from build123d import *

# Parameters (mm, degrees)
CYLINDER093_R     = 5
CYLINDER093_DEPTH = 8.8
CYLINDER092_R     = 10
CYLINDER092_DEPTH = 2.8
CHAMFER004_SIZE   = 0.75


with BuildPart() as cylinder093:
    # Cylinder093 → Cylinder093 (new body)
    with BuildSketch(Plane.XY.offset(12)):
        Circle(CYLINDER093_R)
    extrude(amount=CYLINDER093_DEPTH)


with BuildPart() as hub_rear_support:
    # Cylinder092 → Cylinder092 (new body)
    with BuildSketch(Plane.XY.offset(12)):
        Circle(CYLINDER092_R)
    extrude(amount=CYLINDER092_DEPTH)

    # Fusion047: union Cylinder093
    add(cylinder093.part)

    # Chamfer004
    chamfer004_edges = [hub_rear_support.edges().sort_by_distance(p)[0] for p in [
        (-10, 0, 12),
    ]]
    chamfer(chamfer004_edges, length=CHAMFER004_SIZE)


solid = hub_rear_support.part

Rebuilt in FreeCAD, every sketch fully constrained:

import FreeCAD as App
import Part
import Sketcher


def edges_at(feature, points):
    """Names of the edges that pass closest to the given points."""
    edges = feature.Shape.Edges
    near = lambda p: min(range(len(edges)), key=lambda i: edges[i].distToShape(Part.Vertex(*p))[0])
    return sorted({f"Edge{near(p) + 1}" for p in points})

doc = App.newDocument("Part")
params = doc.addObject("Spreadsheet::Sheet", "Params")
for row, (alias, value) in enumerate([
    ("sketch1_diameter", "10 mm"),
    ("pad1_length", "8.8 mm"),
    ("sketch2_diameter", "20 mm"),
    ("pad2_length", "2.8 mm"),
    ("chamfer_size", "0.75 mm"),
], start=1):
    params.set(f"A{row}", alias)
    params.set(f"B{row}", "=" + value)
    params.setAlias(f"B{row}", alias)

body = doc.addObject("PartDesign::Body", "Body")

sketch1 = body.newObject("Sketcher::SketchObject", "Sketch")
sketch1.AttachmentSupport = (doc.getObject("XY_Plane"), [""])
sketch1.MapMode = "FlatFace"
sketch1.AttachmentOffset = App.Placement(App.Vector(0, 0, 12), App.Rotation())
sketch1.addGeometry(Part.Circle(App.Vector(0, 0, 0), App.Vector(0, 0, 1), 5), False)
sketch1.addConstraint([
    Sketcher.Constraint("Coincident", 0, 3, -1, 1),
    Sketcher.Constraint("Diameter", 0, 10.0),
])
sketch1.setExpression("Constraints[1]", "Params.sketch1_diameter")
pad1 = body.newObject("PartDesign::Pad", "Pad")
pad1.Profile = sketch1
pad1.setExpression("Length", "Params.pad1_length")
body2 = doc.addObject("PartDesign::Body", "Body001")

sketch2 = body2.newObject("Sketcher::SketchObject", "Sketch001")
sketch2.AttachmentSupport = (doc.getObject("XY_Plane001"), [""])
sketch2.MapMode = "FlatFace"
sketch2.AttachmentOffset = App.Placement(App.Vector(0, 0, 12), App.Rotation())
sketch2.addGeometry(Part.Circle(App.Vector(0, 0, 0), App.Vector(0, 0, 1), 10), False)
sketch2.addConstraint([
    Sketcher.Constraint("Coincident", 0, 3, -1, 1),
    Sketcher.Constraint("Diameter", 0, 20.0),
])
sketch2.setExpression("Constraints[1]", "Params.sketch2_diameter")
pad2 = body2.newObject("PartDesign::Pad", "Pad001")
pad2.Profile = sketch2
pad2.setExpression("Length", "Params.pad2_length")
doc.recompute()

boolean = body2.newObject("PartDesign::Boolean", "Boolean")
boolean.Type = "Fuse"
boolean.addObjects([body])
doc.recompute()

chamfer = body2.newObject("PartDesign::Chamfer", "Chamfer")
chamfer.Base = (boolean, edges_at(boolean, [(-10, 0, 12)]))
chamfer.setExpression("Size", "Params.chamfer_size")

doc.recompute()
